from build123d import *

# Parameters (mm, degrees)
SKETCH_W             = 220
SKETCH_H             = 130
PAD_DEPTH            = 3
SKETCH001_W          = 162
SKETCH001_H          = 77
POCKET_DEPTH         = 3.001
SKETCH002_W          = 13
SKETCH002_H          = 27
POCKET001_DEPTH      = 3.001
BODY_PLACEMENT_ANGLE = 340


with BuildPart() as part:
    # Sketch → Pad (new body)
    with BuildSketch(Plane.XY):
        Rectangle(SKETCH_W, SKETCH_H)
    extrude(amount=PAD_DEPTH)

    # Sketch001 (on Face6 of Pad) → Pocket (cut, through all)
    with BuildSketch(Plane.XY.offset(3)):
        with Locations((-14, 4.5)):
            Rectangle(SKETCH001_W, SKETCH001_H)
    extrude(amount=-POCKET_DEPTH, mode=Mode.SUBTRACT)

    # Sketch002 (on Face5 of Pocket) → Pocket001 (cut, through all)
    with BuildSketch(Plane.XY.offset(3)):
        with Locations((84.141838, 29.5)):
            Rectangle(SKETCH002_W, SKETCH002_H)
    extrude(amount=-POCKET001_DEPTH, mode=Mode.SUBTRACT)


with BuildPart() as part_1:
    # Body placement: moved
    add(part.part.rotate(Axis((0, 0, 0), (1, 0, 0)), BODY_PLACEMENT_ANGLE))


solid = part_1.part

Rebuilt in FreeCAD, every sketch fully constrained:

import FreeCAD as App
import Part
import Sketcher

doc = App.newDocument("Part")
body = doc.addObject("PartDesign::Body", "Body")

# Sketch on XY plane
sketch1 = body.newObject("Sketcher::SketchObject", "Sketch")
sketch1.AttachmentSupport = (doc.getObject("XY_Plane"), [""])
sketch1.MapMode = "FlatFace"
sketch1.addGeometry([
    Part.LineSegment(App.Vector(-110, 65, 0), App.Vector(-110, -65, 0)),
    Part.LineSegment(App.Vector(-110, -65, 0), App.Vector(110, -65, 0)),
    Part.LineSegment(App.Vector(110, -65, 0), App.Vector(110, 65, 0)),
    Part.LineSegment(App.Vector(110, 65, 0), App.Vector(-110, 65, 0)),
], False)
sketch1.addConstraint([
    Sketcher.Constraint("Coincident", 0, 2, 1, 1),
    Sketcher.Constraint("Coincident", 1, 2, 2, 1),
    Sketcher.Constraint("Coincident", 2, 2, 3, 1),
    Sketcher.Constraint("Coincident", 3, 2, 0, 1),
    Sketcher.Constraint("Vertical", 0),
    Sketcher.Constraint("Horizontal", 1),
    Sketcher.Constraint("Vertical", 2),
    Sketcher.Constraint("Horizontal", 3),
    Sketcher.Constraint("Symmetric", 0, 2, 2, 2, -1, 1),
    Sketcher.Constraint("DistanceX", 1, 1, 1, 2, 220.0),
    Sketcher.Constraint("DistanceY", 0, 2, 0, 1, 130.0),
])
pad1 = body.newObject("PartDesign::Pad", "Pad")
pad1.Profile = sketch1
pad1.Length = 3

# Sketch on XY plane
sketch2 = body.newObject("Sketcher::SketchObject", "Sketch001")
sketch2.AttachmentSupport = (doc.getObject("XY_Plane"), [""])
sketch2.MapMode = "FlatFace"
sketch2.AttachmentOffset = App.Placement(App.Vector(0, 0, 3), App.Rotation())
sketch2.addGeometry([
    Part.LineSegment(App.Vector(-95, 43, 0), App.Vector(-95, -34, 0)),
    Part.LineSegment(App.Vector(-95, -34, 0), App.Vector(67, -34, 0)),
    Part.LineSegment(App.Vector(67, -34, 0), App.Vector(67, 43, 0)),
    Part.LineSegment(App.Vector(67, 43, 0), App.Vector(-95, 43, 0)),
], False)
sketch2.addConstraint([
    Sketcher.Constraint("Coincident", 0, 2, 1, 1),
    Sketcher.Constraint("Coincident", 1, 2, 2, 1),
    Sketcher.Constraint("Coincident", 2, 2, 3, 1),
    Sketcher.Constraint("Coincident", 3, 2, 0, 1),
    Sketcher.Constraint("Vertical", 0),
    Sketcher.Constraint("Horizontal", 1),
    Sketcher.Constraint("Vertical", 2),
    Sketcher.Constraint("Horizontal", 3),
    Sketcher.Constraint("DistanceX", 1, 1, 1, 2, 162.0),
    Sketcher.Constraint("DistanceY", 0, 2, 0, 1, 77.0),
    Sketcher.Constraint("DistanceX", 0, 2, -1, 1, 95.0),
    Sketcher.Constraint("DistanceY", 0, 2, -1, 1, 34.0),
])
pocket1 = body.newObject("PartDesign::Pocket", "Pocket")
pocket1.Profile = sketch2
pocket1.Type = "ThroughAll"

# Sketch on XY plane
sketch3 = body.newObject("Sketcher::SketchObject", "Sketch002")
sketch3.AttachmentSupport = (doc.getObject("XY_Plane"), [""])
sketch3.MapMode = "FlatFace"
sketch3.AttachmentOffset = App.Placement(App.Vector(0, 0, 3), App.Rotation())
sketch3.addGeometry([
    Part.LineSegment(App.Vector(78, 43, 0), App.Vector(78, 16, 0)),
    Part.LineSegment(App.Vector(78, 16, 0), App.Vector(91, 16, 0)),
    Part.LineSegment(App.Vector(91, 16, 0), App.Vector(91, 43, 0)),
    Part.LineSegment(App.Vector(91, 43, 0), App.Vector(78, 43, 0)),
], False)
sketch3.addConstraint([
    Sketcher.Constraint("Coincident", 0, 2, 1, 1),
    Sketcher.Constraint("Coincident", 1, 2, 2, 1),
    Sketcher.Constraint("Coincident", 2, 2, 3, 1),
    Sketcher.Constraint("Coincident", 3, 2, 0, 1),
    Sketcher.Constraint("Vertical", 0),
    Sketcher.Constraint("Horizontal", 1),
    Sketcher.Constraint("Vertical", 2),
    Sketcher.Constraint("Horizontal", 3),
    Sketcher.Constraint("DistanceX", 1, 1, 1, 2, 13.0),
    Sketcher.Constraint("DistanceY", 0, 2, 0, 1, 27.0),
    Sketcher.Constraint("DistanceY", -1, 1, 0, 2, 16.0),
    Sketcher.Constraint("DistanceX", -1, 1, 0, 2, 77.641838),
])
pocket2 = body.newObject("PartDesign::Pocket", "Pocket001")
pocket2.Profile = sketch3
pocket2.Type = "ThroughAll"
body2 = doc.addObject("PartDesign::Body", "Body001")
doc.recompute()

body.Placement = App.Placement(App.Vector(0, 0, 0), App.Rotation(App.Vector(1, 0, 0), 340))
boolean = body2.newObject("PartDesign::Boolean", "Boolean")
boolean.Type = "Fuse"
boolean.addObjects([body])

doc.recompute()
